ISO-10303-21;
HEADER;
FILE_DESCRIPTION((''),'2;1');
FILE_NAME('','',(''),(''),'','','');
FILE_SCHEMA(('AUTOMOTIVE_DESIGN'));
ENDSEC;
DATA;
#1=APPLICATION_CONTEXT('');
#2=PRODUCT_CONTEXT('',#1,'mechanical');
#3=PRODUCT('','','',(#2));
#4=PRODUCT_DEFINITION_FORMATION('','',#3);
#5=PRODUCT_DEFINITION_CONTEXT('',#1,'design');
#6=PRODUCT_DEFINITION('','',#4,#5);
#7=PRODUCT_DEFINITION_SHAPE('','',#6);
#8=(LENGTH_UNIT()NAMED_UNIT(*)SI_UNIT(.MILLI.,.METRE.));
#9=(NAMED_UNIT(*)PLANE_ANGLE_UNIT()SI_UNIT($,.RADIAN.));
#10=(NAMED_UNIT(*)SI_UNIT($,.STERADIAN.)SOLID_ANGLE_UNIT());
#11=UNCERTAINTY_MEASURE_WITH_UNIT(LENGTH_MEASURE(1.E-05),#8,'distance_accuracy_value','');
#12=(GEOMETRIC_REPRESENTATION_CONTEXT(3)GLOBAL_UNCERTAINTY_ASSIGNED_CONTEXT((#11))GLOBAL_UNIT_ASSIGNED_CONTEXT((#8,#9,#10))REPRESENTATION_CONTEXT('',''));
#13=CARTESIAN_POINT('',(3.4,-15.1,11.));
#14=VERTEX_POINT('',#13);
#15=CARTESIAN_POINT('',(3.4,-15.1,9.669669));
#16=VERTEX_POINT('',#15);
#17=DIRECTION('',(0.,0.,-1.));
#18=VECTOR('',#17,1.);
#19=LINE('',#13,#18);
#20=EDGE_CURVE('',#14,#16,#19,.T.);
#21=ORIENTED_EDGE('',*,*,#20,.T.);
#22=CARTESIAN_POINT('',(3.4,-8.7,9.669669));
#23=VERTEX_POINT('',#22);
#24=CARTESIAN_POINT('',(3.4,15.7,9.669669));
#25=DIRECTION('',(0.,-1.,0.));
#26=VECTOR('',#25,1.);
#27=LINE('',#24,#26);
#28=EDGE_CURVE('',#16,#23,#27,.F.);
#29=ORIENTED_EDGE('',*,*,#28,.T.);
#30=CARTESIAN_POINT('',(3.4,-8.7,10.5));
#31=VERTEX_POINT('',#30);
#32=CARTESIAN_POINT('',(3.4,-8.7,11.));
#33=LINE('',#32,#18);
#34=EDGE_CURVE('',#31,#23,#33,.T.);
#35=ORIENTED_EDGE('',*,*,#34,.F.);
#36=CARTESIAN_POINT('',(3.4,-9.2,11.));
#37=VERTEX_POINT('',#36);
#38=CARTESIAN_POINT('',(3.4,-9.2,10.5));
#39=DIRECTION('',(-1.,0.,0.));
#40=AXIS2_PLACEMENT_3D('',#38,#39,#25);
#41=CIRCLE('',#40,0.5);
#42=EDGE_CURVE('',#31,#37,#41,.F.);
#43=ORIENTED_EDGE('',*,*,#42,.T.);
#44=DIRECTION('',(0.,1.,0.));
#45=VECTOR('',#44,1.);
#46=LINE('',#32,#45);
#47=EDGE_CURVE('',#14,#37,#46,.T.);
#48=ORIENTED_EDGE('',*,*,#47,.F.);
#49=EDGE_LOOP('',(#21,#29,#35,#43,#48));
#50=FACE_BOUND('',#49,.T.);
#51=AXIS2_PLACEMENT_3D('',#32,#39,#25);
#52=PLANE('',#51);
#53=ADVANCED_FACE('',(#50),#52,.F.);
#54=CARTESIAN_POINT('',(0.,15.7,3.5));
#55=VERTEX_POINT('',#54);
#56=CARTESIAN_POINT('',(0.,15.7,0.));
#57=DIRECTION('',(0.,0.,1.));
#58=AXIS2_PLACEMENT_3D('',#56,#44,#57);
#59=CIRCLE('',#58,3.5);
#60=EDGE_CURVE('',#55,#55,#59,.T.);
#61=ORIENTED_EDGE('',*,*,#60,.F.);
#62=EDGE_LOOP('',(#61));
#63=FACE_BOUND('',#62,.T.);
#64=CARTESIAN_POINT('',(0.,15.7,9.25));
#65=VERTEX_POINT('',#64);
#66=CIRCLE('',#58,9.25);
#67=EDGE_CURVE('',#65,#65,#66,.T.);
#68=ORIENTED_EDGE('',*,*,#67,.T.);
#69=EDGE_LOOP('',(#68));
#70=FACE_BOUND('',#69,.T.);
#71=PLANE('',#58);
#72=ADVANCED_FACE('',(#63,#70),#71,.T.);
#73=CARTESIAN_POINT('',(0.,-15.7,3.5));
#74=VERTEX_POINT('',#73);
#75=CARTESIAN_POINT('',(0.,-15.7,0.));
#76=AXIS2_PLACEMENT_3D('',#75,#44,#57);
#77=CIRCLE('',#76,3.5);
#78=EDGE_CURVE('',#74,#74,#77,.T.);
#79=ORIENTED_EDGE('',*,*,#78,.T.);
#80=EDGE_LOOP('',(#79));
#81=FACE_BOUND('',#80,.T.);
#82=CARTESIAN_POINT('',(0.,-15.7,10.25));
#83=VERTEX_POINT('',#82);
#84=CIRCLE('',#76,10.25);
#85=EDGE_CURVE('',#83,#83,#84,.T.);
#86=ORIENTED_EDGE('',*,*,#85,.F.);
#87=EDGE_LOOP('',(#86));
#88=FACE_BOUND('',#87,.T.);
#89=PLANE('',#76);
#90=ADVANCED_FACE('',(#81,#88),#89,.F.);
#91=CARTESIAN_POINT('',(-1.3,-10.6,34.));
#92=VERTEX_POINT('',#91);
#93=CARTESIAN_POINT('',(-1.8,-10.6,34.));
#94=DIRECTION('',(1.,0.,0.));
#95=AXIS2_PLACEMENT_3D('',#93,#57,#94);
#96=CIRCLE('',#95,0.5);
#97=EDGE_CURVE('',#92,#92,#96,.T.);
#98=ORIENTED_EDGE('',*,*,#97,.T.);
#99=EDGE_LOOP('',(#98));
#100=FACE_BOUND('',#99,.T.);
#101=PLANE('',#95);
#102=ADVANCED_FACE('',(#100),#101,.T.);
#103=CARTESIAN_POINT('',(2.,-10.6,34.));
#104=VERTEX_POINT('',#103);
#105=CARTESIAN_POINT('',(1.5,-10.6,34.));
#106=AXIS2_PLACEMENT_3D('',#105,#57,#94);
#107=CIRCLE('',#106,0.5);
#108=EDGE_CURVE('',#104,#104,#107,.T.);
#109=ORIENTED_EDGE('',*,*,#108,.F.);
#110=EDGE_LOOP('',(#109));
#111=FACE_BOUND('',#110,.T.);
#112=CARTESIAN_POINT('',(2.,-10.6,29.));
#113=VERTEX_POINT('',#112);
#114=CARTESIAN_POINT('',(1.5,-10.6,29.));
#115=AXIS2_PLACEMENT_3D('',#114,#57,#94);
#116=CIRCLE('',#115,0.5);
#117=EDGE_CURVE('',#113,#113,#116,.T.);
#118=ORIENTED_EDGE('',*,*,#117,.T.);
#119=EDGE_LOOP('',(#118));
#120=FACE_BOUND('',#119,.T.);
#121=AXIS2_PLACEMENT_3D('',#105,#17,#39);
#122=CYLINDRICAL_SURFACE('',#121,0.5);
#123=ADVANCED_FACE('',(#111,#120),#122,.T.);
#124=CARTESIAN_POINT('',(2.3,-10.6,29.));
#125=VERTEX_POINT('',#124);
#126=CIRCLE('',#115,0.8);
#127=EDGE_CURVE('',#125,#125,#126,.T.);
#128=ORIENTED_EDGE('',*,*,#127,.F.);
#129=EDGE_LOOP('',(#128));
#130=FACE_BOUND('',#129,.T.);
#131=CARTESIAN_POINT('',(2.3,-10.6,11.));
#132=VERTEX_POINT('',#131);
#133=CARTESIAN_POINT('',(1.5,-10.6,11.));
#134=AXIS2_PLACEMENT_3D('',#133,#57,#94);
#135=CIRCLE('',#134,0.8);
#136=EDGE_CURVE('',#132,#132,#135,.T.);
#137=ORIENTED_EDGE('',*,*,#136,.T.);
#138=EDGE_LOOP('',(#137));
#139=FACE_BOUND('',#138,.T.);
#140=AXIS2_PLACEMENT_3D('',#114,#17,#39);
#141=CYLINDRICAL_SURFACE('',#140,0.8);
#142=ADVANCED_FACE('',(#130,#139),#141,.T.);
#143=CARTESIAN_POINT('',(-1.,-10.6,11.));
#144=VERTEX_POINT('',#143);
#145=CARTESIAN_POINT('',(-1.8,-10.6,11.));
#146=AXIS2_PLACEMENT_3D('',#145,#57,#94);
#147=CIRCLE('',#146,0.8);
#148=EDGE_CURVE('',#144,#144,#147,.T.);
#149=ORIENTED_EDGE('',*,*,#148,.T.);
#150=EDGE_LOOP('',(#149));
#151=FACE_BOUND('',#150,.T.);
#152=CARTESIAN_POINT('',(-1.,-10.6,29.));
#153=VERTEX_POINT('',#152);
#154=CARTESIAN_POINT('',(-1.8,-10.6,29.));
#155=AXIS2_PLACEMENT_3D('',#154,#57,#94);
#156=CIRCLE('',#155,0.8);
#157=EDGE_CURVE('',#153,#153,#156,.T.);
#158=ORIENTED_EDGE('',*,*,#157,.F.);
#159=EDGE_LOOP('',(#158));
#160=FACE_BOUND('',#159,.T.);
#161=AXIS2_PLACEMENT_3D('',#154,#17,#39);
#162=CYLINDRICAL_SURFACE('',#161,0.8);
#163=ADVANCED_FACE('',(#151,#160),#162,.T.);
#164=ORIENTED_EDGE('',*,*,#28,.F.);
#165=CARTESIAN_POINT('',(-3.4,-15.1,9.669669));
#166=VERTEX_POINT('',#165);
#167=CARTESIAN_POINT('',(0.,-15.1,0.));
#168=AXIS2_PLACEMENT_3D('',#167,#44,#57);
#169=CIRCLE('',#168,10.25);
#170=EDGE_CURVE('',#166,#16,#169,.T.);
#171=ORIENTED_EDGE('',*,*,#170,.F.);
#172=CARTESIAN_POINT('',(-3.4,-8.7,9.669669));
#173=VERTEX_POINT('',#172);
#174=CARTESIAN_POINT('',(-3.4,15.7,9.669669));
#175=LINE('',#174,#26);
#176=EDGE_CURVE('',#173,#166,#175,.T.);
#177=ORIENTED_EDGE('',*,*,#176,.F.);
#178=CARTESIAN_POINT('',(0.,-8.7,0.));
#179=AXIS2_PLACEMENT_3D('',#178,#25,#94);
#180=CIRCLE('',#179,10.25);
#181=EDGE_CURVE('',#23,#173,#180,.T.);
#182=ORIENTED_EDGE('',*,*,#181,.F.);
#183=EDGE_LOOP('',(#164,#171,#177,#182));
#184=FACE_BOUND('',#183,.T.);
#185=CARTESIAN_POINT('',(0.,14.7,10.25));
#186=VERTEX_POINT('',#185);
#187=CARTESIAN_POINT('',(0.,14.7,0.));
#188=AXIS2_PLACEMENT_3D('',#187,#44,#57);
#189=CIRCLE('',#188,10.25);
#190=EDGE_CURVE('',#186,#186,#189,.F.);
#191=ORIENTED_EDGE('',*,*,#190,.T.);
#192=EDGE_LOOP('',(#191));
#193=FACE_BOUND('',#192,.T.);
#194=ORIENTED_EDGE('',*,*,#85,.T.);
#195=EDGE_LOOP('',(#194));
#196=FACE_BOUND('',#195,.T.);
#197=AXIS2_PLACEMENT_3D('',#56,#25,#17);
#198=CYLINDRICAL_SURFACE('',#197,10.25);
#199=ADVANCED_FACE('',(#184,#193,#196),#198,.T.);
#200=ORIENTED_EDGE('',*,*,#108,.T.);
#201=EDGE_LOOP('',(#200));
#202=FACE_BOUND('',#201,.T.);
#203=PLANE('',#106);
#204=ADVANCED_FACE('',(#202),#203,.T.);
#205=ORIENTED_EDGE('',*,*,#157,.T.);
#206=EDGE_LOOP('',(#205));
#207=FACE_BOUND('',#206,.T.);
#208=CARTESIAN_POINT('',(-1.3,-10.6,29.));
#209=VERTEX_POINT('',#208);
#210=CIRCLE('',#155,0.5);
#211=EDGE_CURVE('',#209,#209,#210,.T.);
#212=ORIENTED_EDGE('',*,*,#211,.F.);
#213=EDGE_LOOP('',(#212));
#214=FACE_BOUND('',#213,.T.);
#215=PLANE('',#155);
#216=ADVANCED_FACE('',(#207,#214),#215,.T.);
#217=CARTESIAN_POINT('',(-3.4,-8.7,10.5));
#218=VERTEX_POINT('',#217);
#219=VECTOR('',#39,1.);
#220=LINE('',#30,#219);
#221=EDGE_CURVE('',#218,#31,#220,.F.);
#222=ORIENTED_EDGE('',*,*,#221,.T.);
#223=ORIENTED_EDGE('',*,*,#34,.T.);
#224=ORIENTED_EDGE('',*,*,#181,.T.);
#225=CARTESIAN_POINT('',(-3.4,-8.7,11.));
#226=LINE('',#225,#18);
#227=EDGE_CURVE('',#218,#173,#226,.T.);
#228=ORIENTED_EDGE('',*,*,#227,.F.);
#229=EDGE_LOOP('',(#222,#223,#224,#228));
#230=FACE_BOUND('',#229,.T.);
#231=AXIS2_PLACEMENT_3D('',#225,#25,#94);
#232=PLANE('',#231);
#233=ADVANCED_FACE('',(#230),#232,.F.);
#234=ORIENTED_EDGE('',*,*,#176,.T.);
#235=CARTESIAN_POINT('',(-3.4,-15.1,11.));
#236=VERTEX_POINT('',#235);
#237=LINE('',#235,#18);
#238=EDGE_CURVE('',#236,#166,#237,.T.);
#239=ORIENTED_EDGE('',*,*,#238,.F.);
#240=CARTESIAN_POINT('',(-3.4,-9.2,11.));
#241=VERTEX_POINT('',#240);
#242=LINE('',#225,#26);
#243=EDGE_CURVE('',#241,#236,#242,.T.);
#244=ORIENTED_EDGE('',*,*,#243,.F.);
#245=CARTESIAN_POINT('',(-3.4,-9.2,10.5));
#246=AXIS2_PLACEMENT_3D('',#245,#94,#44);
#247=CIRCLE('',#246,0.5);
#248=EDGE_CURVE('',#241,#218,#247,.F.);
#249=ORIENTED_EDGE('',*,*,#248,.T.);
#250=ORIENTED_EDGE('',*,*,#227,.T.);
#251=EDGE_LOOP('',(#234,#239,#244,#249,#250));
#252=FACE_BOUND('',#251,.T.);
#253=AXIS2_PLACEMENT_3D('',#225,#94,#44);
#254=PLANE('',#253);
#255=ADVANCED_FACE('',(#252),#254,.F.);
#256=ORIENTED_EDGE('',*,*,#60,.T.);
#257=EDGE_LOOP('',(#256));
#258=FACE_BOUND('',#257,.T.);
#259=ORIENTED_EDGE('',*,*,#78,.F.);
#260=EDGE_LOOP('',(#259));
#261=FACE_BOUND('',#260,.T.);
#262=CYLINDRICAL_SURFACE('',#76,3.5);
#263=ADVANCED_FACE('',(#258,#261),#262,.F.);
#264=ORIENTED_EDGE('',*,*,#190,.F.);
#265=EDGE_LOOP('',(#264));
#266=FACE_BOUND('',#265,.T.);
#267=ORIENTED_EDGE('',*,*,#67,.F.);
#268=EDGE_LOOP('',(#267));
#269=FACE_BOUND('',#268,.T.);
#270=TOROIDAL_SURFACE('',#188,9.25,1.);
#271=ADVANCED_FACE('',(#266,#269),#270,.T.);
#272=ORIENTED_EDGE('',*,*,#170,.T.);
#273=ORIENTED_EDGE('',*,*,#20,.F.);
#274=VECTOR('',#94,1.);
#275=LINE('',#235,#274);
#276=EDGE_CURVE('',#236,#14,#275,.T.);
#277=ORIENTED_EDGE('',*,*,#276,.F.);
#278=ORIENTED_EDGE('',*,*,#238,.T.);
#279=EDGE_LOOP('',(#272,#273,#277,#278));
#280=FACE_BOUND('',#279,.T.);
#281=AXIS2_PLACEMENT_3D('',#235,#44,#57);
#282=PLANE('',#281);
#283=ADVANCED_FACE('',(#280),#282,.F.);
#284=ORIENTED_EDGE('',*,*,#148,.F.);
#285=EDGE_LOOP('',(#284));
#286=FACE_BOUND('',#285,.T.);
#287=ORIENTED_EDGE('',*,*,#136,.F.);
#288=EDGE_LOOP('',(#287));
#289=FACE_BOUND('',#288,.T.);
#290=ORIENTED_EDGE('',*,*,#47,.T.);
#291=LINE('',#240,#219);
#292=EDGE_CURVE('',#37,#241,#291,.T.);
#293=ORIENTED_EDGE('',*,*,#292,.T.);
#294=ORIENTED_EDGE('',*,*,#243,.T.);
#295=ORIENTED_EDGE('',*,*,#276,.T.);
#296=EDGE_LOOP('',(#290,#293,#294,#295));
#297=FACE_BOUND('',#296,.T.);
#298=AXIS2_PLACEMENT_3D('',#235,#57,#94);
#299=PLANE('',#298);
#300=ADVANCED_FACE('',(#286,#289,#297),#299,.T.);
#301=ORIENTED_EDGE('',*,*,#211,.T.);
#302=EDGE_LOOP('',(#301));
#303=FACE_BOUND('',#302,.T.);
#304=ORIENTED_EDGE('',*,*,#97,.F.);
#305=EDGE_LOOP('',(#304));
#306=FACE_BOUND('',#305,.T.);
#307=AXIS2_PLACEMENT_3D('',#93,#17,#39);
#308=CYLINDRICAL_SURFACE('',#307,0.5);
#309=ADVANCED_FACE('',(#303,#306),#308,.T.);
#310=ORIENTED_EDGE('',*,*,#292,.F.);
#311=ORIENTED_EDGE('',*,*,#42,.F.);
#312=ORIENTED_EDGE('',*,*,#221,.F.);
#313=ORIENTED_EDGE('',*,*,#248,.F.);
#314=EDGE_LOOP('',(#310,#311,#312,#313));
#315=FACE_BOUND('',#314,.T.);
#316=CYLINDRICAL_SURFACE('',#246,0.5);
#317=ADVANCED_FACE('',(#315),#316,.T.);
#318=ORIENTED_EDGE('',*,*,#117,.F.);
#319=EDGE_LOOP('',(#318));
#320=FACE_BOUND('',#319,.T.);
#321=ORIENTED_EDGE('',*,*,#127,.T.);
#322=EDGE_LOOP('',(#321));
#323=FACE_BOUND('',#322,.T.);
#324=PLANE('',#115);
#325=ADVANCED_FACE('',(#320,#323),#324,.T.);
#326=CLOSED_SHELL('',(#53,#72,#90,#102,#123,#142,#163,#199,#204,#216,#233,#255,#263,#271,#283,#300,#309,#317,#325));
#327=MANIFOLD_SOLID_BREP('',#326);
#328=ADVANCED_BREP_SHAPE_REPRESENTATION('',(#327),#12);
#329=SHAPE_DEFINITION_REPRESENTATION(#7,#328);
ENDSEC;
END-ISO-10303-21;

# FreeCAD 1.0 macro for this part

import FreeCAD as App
import Part
import Sketcher
Q = App.Units.Quantity


def edges_at(feature, points):
    """Names of the edges that pass closest to the given points."""
    edges = feature.Shape.Edges
    near = lambda p: min(range(len(edges)), key=lambda i: edges[i].distToShape(Part.Vertex(*p))[0])
    return sorted({f"Edge{near(p) + 1}" for p in points})


def add_polygon(sketch, points):
    """Adds a closed chain of lines whose ends are joined by coincident constraints."""
    first, n = sketch.GeometryCount, len(points)
    for a, b in zip(points, points[1:] + points[:1]):
        sketch.addGeometry(Part.LineSegment(App.Vector(*a, 0), App.Vector(*b, 0)), False)
    for i in range(n):
        sketch.addConstraint(Sketcher.Constraint("Coincident", first + i, 2, first + (i + 1) % n, 1))

doc = App.newDocument("Part")
body = doc.addObject("PartDesign::Body", "Body")

# Sketch on XZ plane
sketch1 = body.newObject("Sketcher::SketchObject", "Sketch")
sketch1.AttachmentSupport = (doc.getObject("XZ_Plane"), [""])
sketch1.MapMode = "FlatFace"
sketch1.addGeometry(Part.Circle(App.Vector(0, 0, 0), App.Vector(0, 0, 1), 10), False)
sketch1.addConstraint([
    Sketcher.Constraint("Coincident", 0, 3, -1, 1),
    Sketcher.Constraint("Diameter", 0, Q("20.5 mm")),
])
pad1 = body.newObject("PartDesign::Pad", "Pad")
pad1.Profile = sketch1
pad1.Length = 31.4
pad1.Midplane = True
doc.recompute()

fillet = body.newObject("PartDesign::Fillet", "Fillet")
fillet.Base = (pad1, edges_at(pad1, [(0, 15.7, -10.25)]))
fillet.Radius = 1

# Sketch on XY plane
sketch2 = body.newObject("Sketcher::SketchObject", "Sketch001")
sketch2.AttachmentSupport = (doc.getObject("XY_Plane"), [""])
sketch2.MapMode = "FlatFace"
add_polygon(sketch2, [(-3, -9), (-3, -15), (3, -15), (3, -9)])  # lines 0-3
sketch2.addConstraint([
    Sketcher.Constraint("Vertical", 0),
    Sketcher.Constraint("Horizontal", 1),
    Sketcher.Constraint("Vertical", 2),
    Sketcher.Constraint("Horizontal", 3),
    Sketcher.Constraint("DistanceX", 1, 1, 1, 2, Q("6.8 mm")),
    Sketcher.Constraint("DistanceY", 0, 2, 0, 1, Q("6.4 mm")),
    Sketcher.Constraint("DistanceX", 0, 2, -1, 1, Q("3.4 mm")),
    Sketcher.Constraint("DistanceY", 0, 2, -1, 1, Q("15.1 mm")),
])
pad2 = body.newObject("PartDesign::Pad", "Pad001")
pad2.Profile = sketch2
pad2.Length = 11
doc.recompute()

fillet2 = body.newObject("PartDesign::Fillet", "Fillet001")
fillet2.Base = (pad2, edges_at(pad2, [(0, -8.7, 11)]))
fillet2.Radius = 0.5

# Sketch on XY plane
sketch3 = body.newObject("Sketcher::SketchObject", "Sketch002")
sketch3.AttachmentSupport = (doc.getObject("XY_Plane"), [""])
sketch3.MapMode = "FlatFace"
sketch3.AttachmentOffset = App.Placement(App.Vector(0, 0, 11), App.Rotation())
sketch3.addGeometry([
    Part.Circle(App.Vector(-1.8, -10.6, 0), App.Vector(0, 0, 1), 0.8),
    Part.Circle(App.Vector(1.5, -10.6, 0), App.Vector(0, 0, 1), 0.8),
], False)
sketch3.addConstraint([
    Sketcher.Constraint("Equal", 0, 1),
    Sketcher.Constraint("Horizontal", 0, 3, 1, 3),
    Sketcher.Constraint("Diameter", 0, Q("1.6 mm")),
    Sketcher.Constraint("DistanceX", 0, 3, -1, 1, Q("1.8 mm")),
    Sketcher.Constraint("DistanceY", 0, 3, -1, 1, Q("10.6 mm")),
    Sketcher.Constraint("DistanceX", -1, 1, 1, 3, Q("1.5 mm")),
])
pad3 = body.newObject("PartDesign::Pad", "Pad002")
pad3.Profile = sketch3
pad3.Length = 18

# Sketch on XY plane
sketch4 = body.newObject("Sketcher::SketchObject", "Sketch003")
sketch4.AttachmentSupport = (doc.getObject("XY_Plane"), [""])
sketch4.MapMode = "FlatFace"
sketch4.AttachmentOffset = App.Placement(App.Vector(0, 0, 29), App.Rotation())
sketch4.addGeometry([
    Part.Circle(App.Vector(1.5, -10.6, 0), App.Vector(0, 0, 1), 0.5),
    Part.Circle(App.Vector(-1.8, -10.6, 0), App.Vector(0, 0, 1), 0.5),
], False)
sketch4.addConstraint([
    Sketcher.Constraint("Equal", 0, 1),
    Sketcher.Constraint("Horizontal", 0, 3, 1, 3),
    Sketcher.Constraint("Diameter", 0, Q("1 mm")),
    Sketcher.Constraint("DistanceX", -1, 1, 0, 3, Q("1.5 mm")),
    Sketcher.Constraint("DistanceY", 0, 3, -1, 1, Q("10.6 mm")),
    Sketcher.Constraint("DistanceX", 1, 3, -1, 1, Q("1.8 mm")),
])
pad4 = body.newObject("PartDesign::Pad", "Pad003")
pad4.Profile = sketch4
pad4.Length = 5

# Sketch on XZ plane
sketch5 = body.newObject("Sketcher::SketchObject", "Sketch004")
sketch5.AttachmentSupport = (doc.getObject("XZ_Plane"), [""])
sketch5.MapMode = "FlatFace"
sketch5.AttachmentOffset = App.Placement(App.Vector(0, 0, -15.7), App.Rotation())
sketch5.addGeometry(Part.Circle(App.Vector(0, 0, 0), App.Vector(0, 0, 1), 3.5), False)
sketch5.addConstraint([
    Sketcher.Constraint("Coincident", 0, 3, -1, 1),
    Sketcher.Constraint("Diameter", 0, Q("7 mm")),
])
pocket1 = body.newObject("PartDesign::Pocket", "Pocket")
pocket1.Profile = sketch5
pocket1.Type = "ThroughAll"
pocket1.Reversed = True

doc.recompute()
